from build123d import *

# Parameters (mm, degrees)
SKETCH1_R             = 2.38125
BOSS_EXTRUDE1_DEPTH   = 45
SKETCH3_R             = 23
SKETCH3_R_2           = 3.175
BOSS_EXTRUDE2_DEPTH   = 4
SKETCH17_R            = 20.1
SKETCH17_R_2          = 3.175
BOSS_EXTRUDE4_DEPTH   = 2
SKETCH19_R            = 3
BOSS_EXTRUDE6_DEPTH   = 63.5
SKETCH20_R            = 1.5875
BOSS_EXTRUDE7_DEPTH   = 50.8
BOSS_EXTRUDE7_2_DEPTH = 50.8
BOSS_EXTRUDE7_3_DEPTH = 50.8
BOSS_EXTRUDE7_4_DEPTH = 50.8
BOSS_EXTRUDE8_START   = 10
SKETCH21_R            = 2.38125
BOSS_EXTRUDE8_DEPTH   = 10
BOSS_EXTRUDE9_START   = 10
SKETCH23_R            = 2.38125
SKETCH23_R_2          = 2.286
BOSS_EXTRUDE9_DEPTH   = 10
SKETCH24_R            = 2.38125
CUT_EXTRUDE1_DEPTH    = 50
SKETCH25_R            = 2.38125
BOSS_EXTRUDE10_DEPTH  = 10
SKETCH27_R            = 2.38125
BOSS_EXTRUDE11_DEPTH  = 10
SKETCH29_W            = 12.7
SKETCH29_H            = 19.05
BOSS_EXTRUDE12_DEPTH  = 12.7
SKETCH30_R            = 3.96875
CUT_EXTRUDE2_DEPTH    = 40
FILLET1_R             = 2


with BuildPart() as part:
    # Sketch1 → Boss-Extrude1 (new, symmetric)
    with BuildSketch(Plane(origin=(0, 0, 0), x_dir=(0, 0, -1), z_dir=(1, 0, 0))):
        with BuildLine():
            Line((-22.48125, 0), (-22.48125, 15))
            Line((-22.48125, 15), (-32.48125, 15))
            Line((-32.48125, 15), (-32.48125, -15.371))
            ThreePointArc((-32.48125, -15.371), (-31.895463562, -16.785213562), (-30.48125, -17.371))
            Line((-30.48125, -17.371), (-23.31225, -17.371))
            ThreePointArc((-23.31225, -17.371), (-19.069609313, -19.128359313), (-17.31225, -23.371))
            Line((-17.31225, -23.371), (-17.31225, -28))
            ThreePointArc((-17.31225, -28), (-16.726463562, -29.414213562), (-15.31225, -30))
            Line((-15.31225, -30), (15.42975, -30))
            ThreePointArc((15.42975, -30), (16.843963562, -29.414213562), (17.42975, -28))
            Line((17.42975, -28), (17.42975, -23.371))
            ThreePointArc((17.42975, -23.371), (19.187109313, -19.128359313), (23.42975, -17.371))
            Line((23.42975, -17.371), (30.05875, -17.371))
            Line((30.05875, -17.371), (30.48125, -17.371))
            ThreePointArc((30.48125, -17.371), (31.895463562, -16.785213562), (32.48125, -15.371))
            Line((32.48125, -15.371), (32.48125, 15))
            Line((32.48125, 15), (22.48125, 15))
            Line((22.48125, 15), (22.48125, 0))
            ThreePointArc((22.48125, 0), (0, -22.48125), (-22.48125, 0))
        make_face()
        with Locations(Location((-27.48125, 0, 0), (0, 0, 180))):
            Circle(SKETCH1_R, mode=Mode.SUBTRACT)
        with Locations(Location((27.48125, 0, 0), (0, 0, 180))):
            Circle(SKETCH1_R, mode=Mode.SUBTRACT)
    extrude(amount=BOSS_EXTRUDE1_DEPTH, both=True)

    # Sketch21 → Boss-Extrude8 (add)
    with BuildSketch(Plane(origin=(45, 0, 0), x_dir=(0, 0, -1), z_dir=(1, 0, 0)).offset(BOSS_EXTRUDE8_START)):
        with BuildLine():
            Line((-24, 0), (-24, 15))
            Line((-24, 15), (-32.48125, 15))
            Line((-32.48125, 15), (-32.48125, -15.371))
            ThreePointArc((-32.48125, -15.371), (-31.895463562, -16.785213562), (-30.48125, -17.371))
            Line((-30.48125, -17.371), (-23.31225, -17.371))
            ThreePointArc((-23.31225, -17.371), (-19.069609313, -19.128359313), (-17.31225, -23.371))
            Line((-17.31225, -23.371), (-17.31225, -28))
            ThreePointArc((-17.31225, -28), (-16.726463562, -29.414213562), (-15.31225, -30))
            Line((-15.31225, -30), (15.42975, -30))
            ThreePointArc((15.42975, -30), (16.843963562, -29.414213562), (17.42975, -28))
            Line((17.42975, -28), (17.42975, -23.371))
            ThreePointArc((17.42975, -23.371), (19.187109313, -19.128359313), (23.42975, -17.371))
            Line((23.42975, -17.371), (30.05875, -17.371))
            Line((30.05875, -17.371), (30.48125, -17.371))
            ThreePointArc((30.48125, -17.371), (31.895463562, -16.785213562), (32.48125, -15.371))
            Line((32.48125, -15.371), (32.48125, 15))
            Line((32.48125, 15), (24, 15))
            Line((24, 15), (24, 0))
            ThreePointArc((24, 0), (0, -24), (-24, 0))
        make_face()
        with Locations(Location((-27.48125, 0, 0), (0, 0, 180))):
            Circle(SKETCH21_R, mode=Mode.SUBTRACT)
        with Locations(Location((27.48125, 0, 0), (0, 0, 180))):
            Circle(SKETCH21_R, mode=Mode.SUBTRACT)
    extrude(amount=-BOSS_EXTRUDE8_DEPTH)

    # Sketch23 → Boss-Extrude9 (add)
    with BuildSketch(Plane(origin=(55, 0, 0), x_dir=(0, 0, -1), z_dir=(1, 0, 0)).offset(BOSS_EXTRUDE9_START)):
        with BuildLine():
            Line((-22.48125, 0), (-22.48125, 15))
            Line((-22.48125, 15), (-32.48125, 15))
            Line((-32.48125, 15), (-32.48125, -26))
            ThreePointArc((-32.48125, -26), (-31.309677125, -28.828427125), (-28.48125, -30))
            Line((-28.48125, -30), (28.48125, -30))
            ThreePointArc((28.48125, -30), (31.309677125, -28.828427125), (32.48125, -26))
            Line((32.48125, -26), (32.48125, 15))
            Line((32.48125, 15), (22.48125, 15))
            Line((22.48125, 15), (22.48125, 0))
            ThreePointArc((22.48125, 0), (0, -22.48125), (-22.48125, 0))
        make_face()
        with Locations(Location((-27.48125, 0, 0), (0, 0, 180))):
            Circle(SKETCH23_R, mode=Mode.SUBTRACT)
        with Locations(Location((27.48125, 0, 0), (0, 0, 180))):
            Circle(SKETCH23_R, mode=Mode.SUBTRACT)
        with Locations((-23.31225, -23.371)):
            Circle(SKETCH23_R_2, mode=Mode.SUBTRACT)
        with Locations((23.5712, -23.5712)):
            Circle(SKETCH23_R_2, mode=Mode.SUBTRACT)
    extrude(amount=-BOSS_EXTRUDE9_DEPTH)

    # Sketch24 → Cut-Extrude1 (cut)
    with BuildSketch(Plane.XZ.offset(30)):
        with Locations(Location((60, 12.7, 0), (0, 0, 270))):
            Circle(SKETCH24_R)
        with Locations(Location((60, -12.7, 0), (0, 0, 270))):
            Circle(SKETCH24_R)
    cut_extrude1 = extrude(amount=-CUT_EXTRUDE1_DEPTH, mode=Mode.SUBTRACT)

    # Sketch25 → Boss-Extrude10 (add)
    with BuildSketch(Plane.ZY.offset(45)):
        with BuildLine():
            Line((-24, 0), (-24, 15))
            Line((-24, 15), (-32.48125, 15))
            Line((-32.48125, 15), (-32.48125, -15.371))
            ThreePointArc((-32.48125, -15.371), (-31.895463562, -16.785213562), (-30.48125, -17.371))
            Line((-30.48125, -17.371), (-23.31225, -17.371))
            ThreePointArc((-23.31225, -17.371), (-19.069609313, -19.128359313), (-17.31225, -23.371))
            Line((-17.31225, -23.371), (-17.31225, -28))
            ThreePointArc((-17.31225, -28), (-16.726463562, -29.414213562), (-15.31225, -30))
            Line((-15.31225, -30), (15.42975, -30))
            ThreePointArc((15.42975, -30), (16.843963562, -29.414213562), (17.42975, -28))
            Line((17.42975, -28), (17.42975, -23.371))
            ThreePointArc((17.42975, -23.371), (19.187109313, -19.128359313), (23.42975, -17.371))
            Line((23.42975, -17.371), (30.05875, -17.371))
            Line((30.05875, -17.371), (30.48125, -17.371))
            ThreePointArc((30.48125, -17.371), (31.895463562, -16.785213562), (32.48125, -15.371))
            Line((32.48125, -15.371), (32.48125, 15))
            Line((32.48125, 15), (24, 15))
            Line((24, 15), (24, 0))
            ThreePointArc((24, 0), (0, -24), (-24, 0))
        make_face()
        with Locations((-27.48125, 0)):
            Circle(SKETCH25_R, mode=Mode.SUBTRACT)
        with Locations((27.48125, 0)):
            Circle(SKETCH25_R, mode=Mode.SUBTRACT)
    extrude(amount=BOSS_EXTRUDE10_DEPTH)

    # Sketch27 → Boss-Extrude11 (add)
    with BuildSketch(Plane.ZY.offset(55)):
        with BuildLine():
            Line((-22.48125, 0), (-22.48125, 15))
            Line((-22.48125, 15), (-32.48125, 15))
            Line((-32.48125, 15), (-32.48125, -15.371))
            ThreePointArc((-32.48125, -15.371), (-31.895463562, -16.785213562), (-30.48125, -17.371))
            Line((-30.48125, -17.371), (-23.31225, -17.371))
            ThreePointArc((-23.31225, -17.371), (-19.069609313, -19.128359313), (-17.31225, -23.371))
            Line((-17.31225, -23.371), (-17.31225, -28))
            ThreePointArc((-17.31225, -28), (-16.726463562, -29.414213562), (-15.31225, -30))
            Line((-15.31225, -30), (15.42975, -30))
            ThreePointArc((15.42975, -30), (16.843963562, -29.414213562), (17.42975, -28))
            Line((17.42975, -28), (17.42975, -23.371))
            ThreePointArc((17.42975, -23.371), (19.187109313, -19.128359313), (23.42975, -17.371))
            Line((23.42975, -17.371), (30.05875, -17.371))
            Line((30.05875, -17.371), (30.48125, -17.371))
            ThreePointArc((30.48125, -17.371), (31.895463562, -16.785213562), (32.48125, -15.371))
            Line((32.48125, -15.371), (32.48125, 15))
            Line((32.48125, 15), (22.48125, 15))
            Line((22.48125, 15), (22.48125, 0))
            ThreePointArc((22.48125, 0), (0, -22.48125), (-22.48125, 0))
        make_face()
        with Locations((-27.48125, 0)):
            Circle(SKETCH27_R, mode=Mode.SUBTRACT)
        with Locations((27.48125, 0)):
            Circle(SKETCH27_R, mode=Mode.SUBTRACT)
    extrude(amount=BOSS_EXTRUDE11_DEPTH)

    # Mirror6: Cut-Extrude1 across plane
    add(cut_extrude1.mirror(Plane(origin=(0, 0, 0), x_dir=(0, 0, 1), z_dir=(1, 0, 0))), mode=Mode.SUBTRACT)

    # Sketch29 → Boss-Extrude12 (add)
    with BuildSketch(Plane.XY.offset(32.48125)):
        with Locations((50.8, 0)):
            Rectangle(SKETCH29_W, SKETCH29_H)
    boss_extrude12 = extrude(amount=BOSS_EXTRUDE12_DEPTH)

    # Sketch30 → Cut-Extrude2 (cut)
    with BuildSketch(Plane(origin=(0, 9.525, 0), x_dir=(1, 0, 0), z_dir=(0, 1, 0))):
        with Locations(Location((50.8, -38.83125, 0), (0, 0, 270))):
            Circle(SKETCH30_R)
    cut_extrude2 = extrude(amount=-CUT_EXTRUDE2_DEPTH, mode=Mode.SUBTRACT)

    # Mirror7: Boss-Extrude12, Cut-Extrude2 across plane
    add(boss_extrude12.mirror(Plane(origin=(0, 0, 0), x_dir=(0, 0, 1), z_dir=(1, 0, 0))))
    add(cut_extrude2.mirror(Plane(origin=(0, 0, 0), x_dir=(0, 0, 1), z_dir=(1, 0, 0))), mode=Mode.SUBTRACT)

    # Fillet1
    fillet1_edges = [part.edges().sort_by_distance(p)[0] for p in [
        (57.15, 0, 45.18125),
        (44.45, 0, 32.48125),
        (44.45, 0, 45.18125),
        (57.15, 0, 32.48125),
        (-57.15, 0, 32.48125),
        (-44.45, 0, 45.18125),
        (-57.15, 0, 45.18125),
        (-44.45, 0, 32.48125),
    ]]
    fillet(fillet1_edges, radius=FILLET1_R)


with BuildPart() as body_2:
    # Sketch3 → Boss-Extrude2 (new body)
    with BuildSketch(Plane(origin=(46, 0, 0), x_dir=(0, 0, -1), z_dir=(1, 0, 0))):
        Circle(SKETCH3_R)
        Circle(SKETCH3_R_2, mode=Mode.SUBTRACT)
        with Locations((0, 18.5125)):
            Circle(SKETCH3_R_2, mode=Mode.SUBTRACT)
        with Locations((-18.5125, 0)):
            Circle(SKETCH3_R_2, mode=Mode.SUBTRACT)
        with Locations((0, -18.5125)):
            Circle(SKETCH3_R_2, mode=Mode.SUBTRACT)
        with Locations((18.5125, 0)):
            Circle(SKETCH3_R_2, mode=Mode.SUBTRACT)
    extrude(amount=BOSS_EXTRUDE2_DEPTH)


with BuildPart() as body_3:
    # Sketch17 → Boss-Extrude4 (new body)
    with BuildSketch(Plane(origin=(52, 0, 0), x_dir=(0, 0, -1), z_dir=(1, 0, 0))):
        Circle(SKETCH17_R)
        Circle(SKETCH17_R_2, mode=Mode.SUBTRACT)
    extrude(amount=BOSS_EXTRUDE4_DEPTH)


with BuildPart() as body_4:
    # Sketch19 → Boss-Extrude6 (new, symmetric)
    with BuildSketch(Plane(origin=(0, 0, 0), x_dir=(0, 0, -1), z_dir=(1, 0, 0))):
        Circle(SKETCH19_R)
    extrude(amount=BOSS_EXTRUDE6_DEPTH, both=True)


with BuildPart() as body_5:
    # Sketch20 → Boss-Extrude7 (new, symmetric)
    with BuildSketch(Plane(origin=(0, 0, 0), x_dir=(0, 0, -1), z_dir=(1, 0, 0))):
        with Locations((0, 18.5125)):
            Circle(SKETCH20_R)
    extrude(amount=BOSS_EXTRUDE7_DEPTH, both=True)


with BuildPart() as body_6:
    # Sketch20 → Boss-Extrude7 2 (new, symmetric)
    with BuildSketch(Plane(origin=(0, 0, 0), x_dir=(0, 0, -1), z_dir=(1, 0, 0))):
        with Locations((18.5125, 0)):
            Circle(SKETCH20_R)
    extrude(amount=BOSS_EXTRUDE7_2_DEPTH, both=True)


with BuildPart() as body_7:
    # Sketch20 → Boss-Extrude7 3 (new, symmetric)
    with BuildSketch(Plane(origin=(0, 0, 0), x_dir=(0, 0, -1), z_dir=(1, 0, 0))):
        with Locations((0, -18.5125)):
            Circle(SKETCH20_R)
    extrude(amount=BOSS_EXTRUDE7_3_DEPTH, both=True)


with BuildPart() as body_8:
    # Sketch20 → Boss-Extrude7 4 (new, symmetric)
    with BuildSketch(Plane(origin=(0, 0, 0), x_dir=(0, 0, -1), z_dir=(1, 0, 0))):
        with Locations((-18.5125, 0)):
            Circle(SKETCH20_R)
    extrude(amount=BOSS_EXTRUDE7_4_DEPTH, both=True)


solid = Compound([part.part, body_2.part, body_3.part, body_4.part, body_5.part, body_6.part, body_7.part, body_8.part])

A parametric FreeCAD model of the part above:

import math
import FreeCAD as App
import Part
import Sketcher
from FreeCAD import Vector
Q = App.Units.Quantity


def edges_at(feature, points):
    """Names of the edges that pass closest to the given points."""
    edges = feature.Shape.Edges
    near = lambda p: min(range(len(edges)), key=lambda i: edges[i].distToShape(Part.Vertex(*p))[0])
    return sorted({f"Edge{near(p) + 1}" for p in points})


def add_polygon(sketch, points):
    """Adds a closed chain of lines whose ends are joined by coincident constraints."""
    first, n = sketch.GeometryCount, len(points)
    for a, b in zip(points, points[1:] + points[:1]):
        sketch.addGeometry(Part.LineSegment(App.Vector(*a, 0), App.Vector(*b, 0)), False)
    for i in range(n):
        sketch.addConstraint(Sketcher.Constraint("Coincident", first + i, 2, first + (i + 1) % n, 1))

doc = App.newDocument("Part")
body = doc.addObject("PartDesign::Body", "Body")

sketch1 = body.newObject("Sketcher::SketchObject", "Sketch")
sketch1.AttachmentSupport = (doc.getObject("YZ_Plane"), [""])
sketch1.MapMode = "FlatFace"
sketch1.addGeometry([
    Part.LineSegment(Vector(0, 22.48125, 0), Vector(15, 22.48125, 0)),
    Part.LineSegment(Vector(15, 22.48125, 0), Vector(15, 32.48125, 0)),
    Part.LineSegment(Vector(15, 32.48125, 0), Vector(-15.371, 32.48125, 0)),
    Part.ArcOfCircle(Part.Circle(Vector(-15.371, 30.48125, 0), Vector(0, 0, 1), 2), math.radians(90), math.radians(180)),
    Part.LineSegment(Vector(-17.371, 30.48125, 0), Vector(-17.371, 23.31225, 0)),
    Part.ArcOfCircle(Part.Circle(Vector(-23.371, 23.31225, 0), Vector(0, 0, 1), 6), math.radians(-90), math.radians(0)),
    Part.LineSegment(Vector(-23.371, 17.31225, 0), Vector(-28, 17.31225, 0)),
    Part.ArcOfCircle(Part.Circle(Vector(-28, 15.31225, 0), Vector(0, 0, 1), 2), math.radians(90), math.radians(180)),
    Part.LineSegment(Vector(-30, 15.31225, 0), Vector(-30, -15.42975, 0)),
    Part.ArcOfCircle(Part.Circle(Vector(-28, -15.42975, 0), Vector(0, 0, 1), 2), math.radians(-180), math.radians(-90)),
    Part.LineSegment(Vector(-28, -17.42975, 0), Vector(-23.371, -17.42975, 0)),
    Part.ArcOfCircle(Part.Circle(Vector(-23.371, -23.42975, 0), Vector(0, 0, 1), 6), math.radians(0), math.radians(90)),
    Part.LineSegment(Vector(-17.371, -23.42975, 0), Vector(-17.371, -30.48125, 0)),
    Part.ArcOfCircle(Part.Circle(Vector(-15.371, -30.48125, 0), Vector(0, 0, 1), 2), math.radians(-180), math.radians(-90)),
    Part.LineSegment(Vector(-15.371, -32.48125, 0), Vector(15, -32.48125, 0)),
    Part.LineSegment(Vector(15, -32.48125, 0), Vector(15, -22.48125, 0)),
    Part.LineSegment(Vector(15, -22.48125, 0), Vector(0, -22.48125, 0)),
    Part.ArcOfCircle(Part.Circle(Vector(0, 0, 0), Vector(0, 0, 1), 22.48125), math.radians(90), math.radians(270)),
    Part.Circle(Vector(0, 27.48125, 0), Vector(0, 0, 1), 2.38125),
    Part.Circle(Vector(0, -27.48125, 0), Vector(0, 0, 1), 2.38125),
], False)
sketch1.addConstraint([
    Sketcher.Constraint("Coincident", 0, 2, 1, 1),
    Sketcher.Constraint("Coincident", 1, 2, 2, 1),
    Sketcher.Constraint("Tangent", 2, 2, 3, 1),
    Sketcher.Constraint("Tangent", 3, 2, 4, 1),
    Sketcher.Constraint("Tangent", 4, 2, 5, 2),
    Sketcher.Constraint("Tangent", 5, 1, 6, 1),
    Sketcher.Constraint("Tangent", 6, 2, 7, 1),
    Sketcher.Constraint("Tangent", 7, 2, 8, 1),
    Sketcher.Constraint("Tangent", 8, 2, 9, 1),
    Sketcher.Constraint("Tangent", 9, 2, 10, 1),
    Sketcher.Constraint("Tangent", 10, 2, 11, 2),
    Sketcher.Constraint("Tangent", 11, 1, 12, 1),
    Sketcher.Constraint("Tangent", 12, 2, 13, 1),
    Sketcher.Constraint("Tangent", 13, 2, 14, 1),
    Sketcher.Constraint("Coincident", 14, 2, 15, 1),
    Sketcher.Constraint("Coincident", 15, 2, 16, 1),
    Sketcher.Constraint("Tangent", 16, 2, 17, 2),
    Sketcher.Constraint("Tangent", 17, 1, 0, 1),
    Sketcher.Constraint("Horizontal", 0),
    Sketcher.Constraint("Vertical", 1),
    Sketcher.Constraint("Horizontal", 2),
    Sketcher.Constraint("Vertical", 4),
    Sketcher.Constraint("Horizontal", 6),
    Sketcher.Constraint("Vertical", 8),
    Sketcher.Constraint("Horizontal", 10),
    Sketcher.Constraint("Vertical", 12),
    Sketcher.Constraint("Horizontal", 14),
    Sketcher.Constraint("Vertical", 15),
    Sketcher.Constraint("Horizontal", 16),
    Sketcher.Constraint("Coincident", 17, 3, -1, 1),
    Sketcher.Constraint("Equal", 3, 7),
    Sketcher.Constraint("Equal", 7, 9),
    Sketcher.Constraint("Equal", 5, 11),
    Sketcher.Constraint("Equal", 9, 13),
    Sketcher.Constraint("Equal", 18, 19),
    Sketcher.Constraint("Symmetric", 18, 3, 19, 3, -1, 1),
    Sketcher.Constraint("Symmetric", 3, 3, 13, 3, -1),
    Sketcher.Constraint("PointOnObject", 18, 3, -2),
    Sketcher.Constraint("Vertical", 1, 2, 14, 2),
    Sketcher.Constraint("Radius", 3, Q("2 mm")),
    Sketcher.Constraint("Radius", 5, Q("6 mm")),
    Sketcher.Constraint("DistanceX", 0, 1, 0, 2, Q("15 mm")),
    Sketcher.Constraint("DistanceY", 1, 1, 1, 2, Q("10 mm")),
    Sketcher.Constraint("DistanceX", 7, 3, -1, 1, Q("28 mm")),
    Sketcher.Constraint("DistanceY", 18, 3, 3, 3, Q("3 mm")),
    Sketcher.Constraint("Diameter", 18, Q("4.7625 mm")),
    Sketcher.Constraint("DistanceX", 2, 2, 2, 1, Q("30.371 mm")),
    Sketcher.Constraint("DistanceY", 4, 2, 4, 1, Q("7.169 mm")),
    Sketcher.Constraint("DistanceY", 8, 2, 8, 1, Q("30.742 mm")),
    Sketcher.Constraint("Radius", 17, Q("22.48125 mm")),
])
pad1 = body.newObject("PartDesign::Pad", "Pad")
pad1.Profile = sketch1
pad1.Length = 90
pad1.Midplane = True

sketch2 = body.newObject("Sketcher::SketchObject", "Sketch001")
sketch2.AttachmentSupport = (doc.getObject("YZ_Plane"), [""])
sketch2.MapMode = "FlatFace"
sketch2.AttachmentOffset = App.Placement(Vector(0, 0, 55), App.Rotation())
sketch2.addGeometry([
    Part.LineSegment(Vector(0, 24, 0), Vector(15, 24, 0)),
    Part.LineSegment(Vector(15, 24, 0), Vector(15, 32.48125, 0)),
    Part.LineSegment(Vector(15, 32.48125, 0), Vector(-15.371, 32.48125, 0)),
    Part.ArcOfCircle(Part.Circle(Vector(-15.371, 30.48125, 0), Vector(0, 0, 1), 2), math.radians(90), math.radians(180)),
    Part.LineSegment(Vector(-17.371, 30.48125, 0), Vector(-17.371, 23.31225, 0)),
    Part.ArcOfCircle(Part.Circle(Vector(-23.371, 23.31225, 0), Vector(0, 0, 1), 6), math.radians(-90), math.radians(0)),
    Part.LineSegment(Vector(-23.371, 17.31225, 0), Vector(-28, 17.31225, 0)),
    Part.ArcOfCircle(Part.Circle(Vector(-28, 15.31225, 0), Vector(0, 0, 1), 2), math.radians(90), math.radians(180)),
    Part.LineSegment(Vector(-30, 15.31225, 0), Vector(-30, -15.42975, 0)),
    Part.ArcOfCircle(Part.Circle(Vector(-28, -15.42975, 0), Vector(0, 0, 1), 2), math.radians(-180), math.radians(-90)),
    Part.LineSegment(Vector(-28, -17.42975, 0), Vector(-23.371, -17.42975, 0)),
    Part.ArcOfCircle(Part.Circle(Vector(-23.371, -23.42975, 0), Vector(0, 0, 1), 6), math.radians(0), math.radians(90)),
    Part.LineSegment(Vector(-17.371, -23.42975, 0), Vector(-17.371, -30.48125, 0)),
    Part.ArcOfCircle(Part.Circle(Vector(-15.371, -30.48125, 0), Vector(0, 0, 1), 2), math.radians(-180), math.radians(-90)),
    Part.LineSegment(Vector(-15.371, -32.48125, 0), Vector(15, -32.48125, 0)),
    Part.LineSegment(Vector(15, -32.48125, 0), Vector(15, -24, 0)),
    Part.LineSegment(Vector(15, -24, 0), Vector(0, -24, 0)),
    Part.ArcOfCircle(Part.Circle(Vector(0, 0, 0), Vector(0, 0, 1), 24), math.radians(90), math.radians(270)),
    Part.Circle(Vector(0, 27.48125, 0), Vector(0, 0, 1), 2.38125),
    Part.Circle(Vector(0, -27.48125, 0), Vector(0, 0, 1), 2.38125),
], False)
sketch2.addConstraint([
    Sketcher.Constraint("Coincident", 0, 2, 1, 1),
    Sketcher.Constraint("Coincident", 1, 2, 2, 1),
    Sketcher.Constraint("Tangent", 2, 2, 3, 1),
    Sketcher.Constraint("Tangent", 3, 2, 4, 1),
    Sketcher.Constraint("Tangent", 4, 2, 5, 2),
    Sketcher.Constraint("Tangent", 5, 1, 6, 1),
    Sketcher.Constraint("Tangent", 6, 2, 7, 1),
    Sketcher.Constraint("Tangent", 7, 2, 8, 1),
    Sketcher.Constraint("Tangent", 8, 2, 9, 1),
    Sketcher.Constraint("Tangent", 9, 2, 10, 1),
    Sketcher.Constraint("Tangent", 10, 2, 11, 2),
    Sketcher.Constraint("Tangent", 11, 1, 12, 1),
    Sketcher.Constraint("Tangent", 12, 2, 13, 1),
    Sketcher.Constraint("Tangent", 13, 2, 14, 1),
    Sketcher.Constraint("Coincident", 14, 2, 15, 1),
    Sketcher.Constraint("Coincident", 15, 2, 16, 1),
    Sketcher.Constraint("Tangent", 16, 2, 17, 2),
    Sketcher.Constraint("Tangent", 17, 1, 0, 1),
    Sketcher.Constraint("Horizontal", 0),
    Sketcher.Constraint("Vertical", 1),
    Sketcher.Constraint("Horizontal", 2),
    Sketcher.Constraint("Vertical", 4),
    Sketcher.Constraint("Horizontal", 6),
    Sketcher.Constraint("Vertical", 8),
    Sketcher.Constraint("Horizontal", 10),
    Sketcher.Constraint("Vertical", 12),
    Sketcher.Constraint("Horizontal", 14),
    Sketcher.Constraint("Vertical", 15),
    Sketcher.Constraint("Horizontal", 16),
    Sketcher.Constraint("Coincident", 17, 3, -1, 1),
    Sketcher.Constraint("Equal", 3, 7),
    Sketcher.Constraint("Equal", 7, 9),
    Sketcher.Constraint("Equal", 5, 11),
    Sketcher.Constraint("Equal", 9, 13),
    Sketcher.Constraint("Equal", 18, 19),
    Sketcher.Constraint("Symmetric", 18, 3, 19, 3, -1, 1),
    Sketcher.Constraint("Symmetric", 3, 3, 13, 3, -1),
    Sketcher.Constraint("PointOnObject", 18, 3, -2),
    Sketcher.Constraint("Vertical", 1, 2, 14, 2),
    Sketcher.Constraint("Radius", 3, Q("2 mm")),
    Sketcher.Constraint("Radius", 5, Q("6 mm")),
    Sketcher.Constraint("Radius", 17, Q("24 mm")),
    Sketcher.Constraint("DistanceX", 0, 1, 0, 2, Q("15 mm")),
    Sketcher.Constraint("DistanceX", 7, 3, -1, 1, Q("28 mm")),
    Sketcher.Constraint("DistanceY", 18, 3, 3, 3, Q("3 mm")),
    Sketcher.Constraint("Diameter", 18, Q("4.7625 mm")),
    Sketcher.Constraint("DistanceX", 2, 2, 2, 1, Q("30.371 mm")),
    Sketcher.Constraint("DistanceY", 4, 2, 4, 1, Q("7.169 mm")),
    Sketcher.Constraint("DistanceY", 8, 2, 8, 1, Q("30.742 mm")),
    Sketcher.Constraint("DistanceY", 12, 2, 12, 1, Q("7.0515 mm")),
])
pad2 = body.newObject("PartDesign::Pad", "Pad001")
pad2.Profile = sketch2
pad2.Length = 10
pad2.Reversed = True

sketch3 = body.newObject("Sketcher::SketchObject", "Sketch002")
sketch3.AttachmentSupport = (doc.getObject("YZ_Plane"), [""])
sketch3.MapMode = "FlatFace"
sketch3.AttachmentOffset = App.Placement(Vector(0, 0, 65), App.Rotation())
sketch3.addGeometry([
    Part.LineSegment(Vector(0, 22.48125, 0), Vector(15, 22.48125, 0)),
    Part.LineSegment(Vector(15, 22.48125, 0), Vector(15, 32.48125, 0)),
    Part.LineSegment(Vector(15, 32.48125, 0), Vector(-26, 32.48125, 0)),
    Part.ArcOfCircle(Part.Circle(Vector(-26, 28.48125, 0), Vector(0, 0, 1), 4), math.radians(90), math.radians(180)),
    Part.LineSegment(Vector(-30, 28.48125, 0), Vector(-30, -28.48125, 0)),
    Part.ArcOfCircle(Part.Circle(Vector(-26, -28.48125, 0), Vector(0, 0, 1), 4), math.radians(180), math.radians(270)),
    Part.LineSegment(Vector(-26, -32.48125, 0), Vector(15, -32.48125, 0)),
    Part.LineSegment(Vector(15, -32.48125, 0), Vector(15, -22.48125, 0)),
    Part.LineSegment(Vector(15, -22.48125, 0), Vector(0, -22.48125, 0)),
    Part.ArcOfCircle(Part.Circle(Vector(0, 0, 0), Vector(0, 0, 1), 22.48125), math.radians(90), math.radians(270)),
    Part.Circle(Vector(-23.371, 23.31225, 0), Vector(0, 0, 1), 2.286),
    Part.Circle(Vector(-23.5712, -23.5712, 0), Vector(0, 0, 1), 2.286),
    Part.Circle(Vector(0, 27.48125, 0), Vector(0, 0, 1), 2.38125),
    Part.Circle(Vector(0, -27.48125, 0), Vector(0, 0, 1), 2.38125),
], False)
sketch3.addConstraint([
    Sketcher.Constraint("Coincident", 0, 2, 1, 1),
    Sketcher.Constraint("Coincident", 1, 2, 2, 1),
    Sketcher.Constraint("Tangent", 2, 2, 3, 1),
    Sketcher.Constraint("Tangent", 3, 2, 4, 1),
    Sketcher.Constraint("Tangent", 4, 2, 5, 1),
    Sketcher.Constraint("Tangent", 5, 2, 6, 1),
    Sketcher.Constraint("Coincident", 6, 2, 7, 1),
    Sketcher.Constraint("Coincident", 7, 2, 8, 1),
    Sketcher.Constraint("Tangent", 8, 2, 9, 2),
    Sketcher.Constraint("Tangent", 9, 1, 0, 1),
    Sketcher.Constraint("Horizontal", 0),
    Sketcher.Constraint("Vertical", 1),
    Sketcher.Constraint("Horizontal", 2),
    Sketcher.Constraint("Vertical", 4),
    Sketcher.Constraint("Horizontal", 6),
    Sketcher.Constraint("Vertical", 7),
    Sketcher.Constraint("Horizontal", 8),
    Sketcher.Constraint("Coincident", 9, 3, -1, 1),
    Sketcher.Constraint("Equal", 3, 5),
    Sketcher.Constraint("Equal", 10, 11),
    Sketcher.Constraint("Equal", 12, 13),
    Sketcher.Constraint("Symmetric", 12, 3, 13, 3, -1, 1),
    Sketcher.Constraint("Symmetric", 1, 2, 6, 2, -1),
    Sketcher.Constraint("PointOnObject", 12, 3, -2),
    Sketcher.Constraint("Radius", 3, Q("4 mm")),
    Sketcher.Constraint("DistanceX", 0, 1, 0, 2, Q("15 mm")),
    Sketcher.Constraint("DistanceX", 2, 2, 2, 1, Q("41 mm")),
    Sketcher.Constraint("DistanceY", 1, 1, 1, 2, Q("10 mm")),
    Sketcher.Constraint("Diameter", 10, Q("4.572 mm")),
    Sketcher.Constraint("DistanceY", 12, 3, 3, 3, Q("1 mm")),
    Sketcher.Constraint("Diameter", 12, Q("4.7625 mm")),
    Sketcher.Constraint("Radius", 9, Q("22.48125 mm")),
    Sketcher.Constraint("DistanceX", 10, 3, -1, 1, Q("23.371 mm")),
    Sketcher.Constraint("DistanceY", 10, 3, 3, 3, Q("5.169 mm")),
    Sketcher.Constraint("DistanceX", 11, 3, -1, 1, Q("23.5712 mm")),
    Sketcher.Constraint("DistanceY", 11, 3, -1, 1, Q("23.5712 mm")),
])
pad3 = body.newObject("PartDesign::Pad", "Pad002")
pad3.Profile = sketch3
pad3.Length = 10
pad3.Reversed = True

sketch4 = body.newObject("Sketcher::SketchObject", "Sketch003")
sketch4.AttachmentSupport = (doc.getObject("XZ_Plane"), [""])
sketch4.MapMode = "FlatFace"
sketch4.AttachmentOffset = App.Placement(Vector(0, 0, 30), App.Rotation())
sketch4.addGeometry([
    Part.Circle(Vector(60, 12.7, 0), Vector(0, 0, 1), 2.38125),
    Part.Circle(Vector(60, -12.7, 0), Vector(0, 0, 1), 2.38125),
], False)
sketch4.addConstraint([
    Sketcher.Constraint("Equal", 0, 1),
    Sketcher.Constraint("Symmetric", 0, 3, 1, 3, -1),
    Sketcher.Constraint("DistanceX", -1, 1, 0, 3, Q("60 mm")),
    Sketcher.Constraint("Diameter", 0, Q("4.7625 mm")),
    Sketcher.Constraint("DistanceY", -1, 1, 0, 3, Q("12.7 mm")),
])
pocket1 = body.newObject("PartDesign::Pocket", "Pocket")
pocket1.Profile = sketch4
pocket1.Length = 50

sketch5 = body.newObject("Sketcher::SketchObject", "Sketch004")
sketch5.AttachmentSupport = (doc.getObject("YZ_Plane"), [""])
sketch5.MapMode = "FlatFace"
sketch5.AttachmentOffset = App.Placement(Vector(0, 0, -45), App.Rotation())
sketch5.addGeometry([
    Part.LineSegment(Vector(0, -24, 0), Vector(15, -24, 0)),
    Part.LineSegment(Vector(15, -24, 0), Vector(15, -32.48125, 0)),
    Part.LineSegment(Vector(15, -32.48125, 0), Vector(-15.371, -32.48125, 0)),
    Part.ArcOfCircle(Part.Circle(Vector(-15.371, -30.48125, 0), Vector(0, 0, 1), 2), math.radians(-180), math.radians(-90)),
    Part.LineSegment(Vector(-17.371, -30.48125, 0), Vector(-17.371, -23.31225, 0)),
    Part.ArcOfCircle(Part.Circle(Vector(-23.371, -23.31225, 0), Vector(0, 0, 1), 6), math.radians(0), math.radians(90)),
    Part.LineSegment(Vector(-23.371, -17.31225, 0), Vector(-28, -17.31225, 0)),
    Part.ArcOfCircle(Part.Circle(Vector(-28, -15.31225, 0), Vector(0, 0, 1), 2), math.radians(-180), math.radians(-90)),
    Part.LineSegment(Vector(-30, -15.31225, 0), Vector(-30, 15.42975, 0)),
    Part.ArcOfCircle(Part.Circle(Vector(-28, 15.42975, 0), Vector(0, 0, 1), 2), math.radians(90), math.radians(180)),
    Part.LineSegment(Vector(-28, 17.42975, 0), Vector(-23.371, 17.42975, 0)),
    Part.ArcOfCircle(Part.Circle(Vector(-23.371, 23.42975, 0), Vector(0, 0, 1), 6), math.radians(-90), math.radians(0)),
    Part.LineSegment(Vector(-17.371, 23.42975, 0), Vector(-17.371, 30.48125, 0)),
    Part.ArcOfCircle(Part.Circle(Vector(-15.371, 30.48125, 0), Vector(0, 0, 1), 2), math.radians(90), math.radians(180)),
    Part.LineSegment(Vector(-15.371, 32.48125, 0), Vector(15, 32.48125, 0)),
    Part.LineSegment(Vector(15, 32.48125, 0), Vector(15, 24, 0)),
    Part.LineSegment(Vector(15, 24, 0), Vector(0, 24, 0)),
    Part.ArcOfCircle(Part.Circle(Vector(0, 0, 0), Vector(0, 0, 1), 24), math.radians(90), math.radians(270)),
    Part.Circle(Vector(0, -27.48125, 0), Vector(0, 0, 1), 2.38125),
    Part.Circle(Vector(0, 27.48125, 0), Vector(0, 0, 1), 2.38125),
], False)
sketch5.addConstraint([
    Sketcher.Constraint("Coincident", 0, 2, 1, 1),
    Sketcher.Constraint("Coincident", 1, 2, 2, 1),
    Sketcher.Constraint("Tangent", 2, 2, 3, 2),
    Sketcher.Constraint("Tangent", 3, 1, 4, 1),
    Sketcher.Constraint("Tangent", 4, 2, 5, 1),
    Sketcher.Constraint("Tangent", 5, 2, 6, 1),
    Sketcher.Constraint("Tangent", 6, 2, 7, 2),
    Sketcher.Constraint("Tangent", 7, 1, 8, 1),
    Sketcher.Constraint("Tangent", 8, 2, 9, 2),
    Sketcher.Constraint("Tangent", 9, 1, 10, 1),
    Sketcher.Constraint("Tangent", 10, 2, 11, 1),
    Sketcher.Constraint("Tangent", 11, 2, 12, 1),
    Sketcher.Constraint("Tangent", 12, 2, 13, 2),
    Sketcher.Constraint("Tangent", 13, 1, 14, 1),
    Sketcher.Constraint("Coincident", 14, 2, 15, 1),
    Sketcher.Constraint("Coincident", 15, 2, 16, 1),
    Sketcher.Constraint("Tangent", 16, 2, 17, 1),
    Sketcher.Constraint("Tangent", 17, 2, 0, 1),
    Sketcher.Constraint("Horizontal", 0),
    Sketcher.Constraint("Vertical", 1),
    Sketcher.Constraint("Horizontal", 2),
    Sketcher.Constraint("Vertical", 4),
    Sketcher.Constraint("Horizontal", 6),
    Sketcher.Constraint("Vertical", 8),
    Sketcher.Constraint("Horizontal", 10),
    Sketcher.Constraint("Vertical", 12),
    Sketcher.Constraint("Horizontal", 14),
    Sketcher.Constraint("Vertical", 15),
    Sketcher.Constraint("Horizontal", 16),
    Sketcher.Constraint("Coincident", 17, 3, -1, 1),
    Sketcher.Constraint("Equal", 3, 7),
    Sketcher.Constraint("Equal", 7, 9),
    Sketcher.Constraint("Equal", 5, 11),
    Sketcher.Constraint("Equal", 9, 13),
    Sketcher.Constraint("Equal", 18, 19),
    Sketcher.Constraint("Symmetric", 18, 3, 19, 3, -1, 1),
    Sketcher.Constraint("Symmetric", 3, 3, 13, 3, -1),
    Sketcher.Constraint("PointOnObject", 18, 3, -2),
    Sketcher.Constraint("Vertical", 1, 2, 14, 2),
    Sketcher.Constraint("Radius", 3, Q("2 mm")),
    Sketcher.Constraint("Radius", 5, Q("6 mm")),
    Sketcher.Constraint("Radius", 17, Q("24 mm")),
    Sketcher.Constraint("DistanceX", 0, 1, 0, 2, Q("15 mm")),
    Sketcher.Constraint("DistanceX", 7, 3, -1, 1, Q("28 mm")),
    Sketcher.Constraint("DistanceY", 3, 3, 18, 3, Q("3 mm")),
    Sketcher.Constraint("Diameter", 18, Q("4.7625 mm")),
    Sketcher.Constraint("DistanceX", 2, 2, 2, 1, Q("30.371 mm")),
    Sketcher.Constraint("DistanceY", 4, 1, 4, 2, Q("7.169 mm")),
    Sketcher.Constraint("DistanceY", 8, 1, 8, 2, Q("30.742 mm")),
    Sketcher.Constraint("DistanceY", 12, 1, 12, 2, Q("7.0515 mm")),
])
pad4 = body.newObject("PartDesign::Pad", "Pad003")
pad4.Profile = sketch5
pad4.Length = 10
pad4.Reversed = True

sketch6 = body.newObject("Sketcher::SketchObject", "Sketch005")
sketch6.AttachmentSupport = (doc.getObject("YZ_Plane"), [""])
sketch6.MapMode = "FlatFace"
sketch6.AttachmentOffset = App.Placement(Vector(0, 0, -55), App.Rotation())
sketch6.addGeometry([
    Part.LineSegment(Vector(0, -22.48125, 0), Vector(15, -22.48125, 0)),
    Part.LineSegment(Vector(15, -22.48125, 0), Vector(15, -32.48125, 0)),
    Part.LineSegment(Vector(15, -32.48125, 0), Vector(-15.371, -32.48125, 0)),
    Part.ArcOfCircle(Part.Circle(Vector(-15.371, -30.48125, 0), Vector(0, 0, 1), 2), math.radians(-180), math.radians(-90)),
    Part.LineSegment(Vector(-17.371, -30.48125, 0), Vector(-17.371, -23.31225, 0)),
    Part.ArcOfCircle(Part.Circle(Vector(-23.371, -23.31225, 0), Vector(0, 0, 1), 6), math.radians(0), math.radians(90)),
    Part.LineSegment(Vector(-23.371, -17.31225, 0), Vector(-28, -17.31225, 0)),
    Part.ArcOfCircle(Part.Circle(Vector(-28, -15.31225, 0), Vector(0, 0, 1), 2), math.radians(-180), math.radians(-90)),
    Part.LineSegment(Vector(-30, -15.31225, 0), Vector(-30, 15.42975, 0)),
    Part.ArcOfCircle(Part.Circle(Vector(-28, 15.42975, 0), Vector(0, 0, 1), 2), math.radians(90), math.radians(180)),
    Part.LineSegment(Vector(-28, 17.42975, 0), Vector(-23.371, 17.42975, 0)),
    Part.ArcOfCircle(Part.Circle(Vector(-23.371, 23.42975, 0), Vector(0, 0, 1), 6), math.radians(-90), math.radians(0)),
    Part.LineSegment(Vector(-17.371, 23.42975, 0), Vector(-17.371, 30.48125, 0)),
    Part.ArcOfCircle(Part.Circle(Vector(-15.371, 30.48125, 0), Vector(0, 0, 1), 2), math.radians(90), math.radians(180)),
    Part.LineSegment(Vector(-15.371, 32.48125, 0), Vector(15, 32.48125, 0)),
    Part.LineSegment(Vector(15, 32.48125, 0), Vector(15, 22.48125, 0)),
    Part.LineSegment(Vector(15, 22.48125, 0), Vector(0, 22.48125, 0)),
    Part.ArcOfCircle(Part.Circle(Vector(0, 0, 0), Vector(0, 0, 1), 22.48125), math.radians(90), math.radians(270)),
    Part.Circle(Vector(0, -27.48125, 0), Vector(0, 0, 1), 2.38125),
    Part.Circle(Vector(0, 27.48125, 0), Vector(0, 0, 1), 2.38125),
], False)
sketch6.addConstraint([
    Sketcher.Constraint("Coincident", 0, 2, 1, 1),
    Sketcher.Constraint("Coincident", 1, 2, 2, 1),
    Sketcher.Constraint("Tangent", 2, 2, 3, 2),
    Sketcher.Constraint("Tangent", 3, 1, 4, 1),
    Sketcher.Constraint("Tangent", 4, 2, 5, 1),
    Sketcher.Constraint("Tangent", 5, 2, 6, 1),
    Sketcher.Constraint("Tangent", 6, 2, 7, 2),
    Sketcher.Constraint("Tangent", 7, 1, 8, 1),
    Sketcher.Constraint("Tangent", 8, 2, 9, 2),
    Sketcher.Constraint("Tangent", 9, 1, 10, 1),
    Sketcher.Constraint("Tangent", 10, 2, 11, 1),
    Sketcher.Constraint("Tangent", 11, 2, 12, 1),
    Sketcher.Constraint("Tangent", 12, 2, 13, 2),
    Sketcher.Constraint("Tangent", 13, 1, 14, 1),
    Sketcher.Constraint("Coincident", 14, 2, 15, 1),
    Sketcher.Constraint("Coincident", 15, 2, 16, 1),
    Sketcher.Constraint("Tangent", 16, 2, 17, 1),
    Sketcher.Constraint("Tangent", 17, 2, 0, 1),
    Sketcher.Constraint("Horizontal", 0),
    Sketcher.Constraint("Vertical", 1),
    Sketcher.Constraint("Horizontal", 2),
    Sketcher.Constraint("Vertical", 4),
    Sketcher.Constraint("Horizontal", 6),
    Sketcher.Constraint("Vertical", 8),
    Sketcher.Constraint("Horizontal", 10),
    Sketcher.Constraint("Vertical", 12),
    Sketcher.Constraint("Horizontal", 14),
    Sketcher.Constraint("Vertical", 15),
    Sketcher.Constraint("Horizontal", 16),
    Sketcher.Constraint("Coincident", 17, 3, -1, 1),
    Sketcher.Constraint("Equal", 3, 7),
    Sketcher.Constraint("Equal", 7, 9),
    Sketcher.Constraint("Equal", 5, 11),
    Sketcher.Constraint("Equal", 9, 13),
    Sketcher.Constraint("Equal", 18, 19),
    Sketcher.Constraint("Symmetric", 18, 3, 19, 3, -1, 1),
    Sketcher.Constraint("Symmetric", 3, 3, 13, 3, -1),
    Sketcher.Constraint("PointOnObject", 18, 3, -2),
    Sketcher.Constraint("Vertical", 1, 2, 14, 2),
    Sketcher.Constraint("Radius", 3, Q("2 mm")),
    Sketcher.Constraint("Radius", 5, Q("6 mm")),
    Sketcher.Constraint("DistanceX", 0, 1, 0, 2, Q("15 mm")),
    Sketcher.Constraint("DistanceY", 1, 2, 1, 1, Q("10 mm")),
    Sketcher.Constraint("DistanceX", 7, 3, -1, 1, Q("28 mm")),
    Sketcher.Constraint("DistanceY", 3, 3, 18, 3, Q("3 mm")),
    Sketcher.Constraint("Diameter", 18, Q("4.7625 mm")),
    Sketcher.Constraint("DistanceX", 2, 2, 2, 1, Q("30.371 mm")),
    Sketcher.Constraint("DistanceY", 4, 1, 4, 2, Q("7.169 mm")),
    Sketcher.Constraint("DistanceY", 8, 1, 8, 2, Q("30.742 mm")),
    Sketcher.Constraint("Radius", 17, Q("22.48125 mm")),
])
pad5 = body.newObject("PartDesign::Pad", "Pad004")
pad5.Profile = sketch6
pad5.Length = 10
pad5.Reversed = True
doc.recompute()

mirrored = body.newObject("PartDesign::Mirrored", "Mirrored")
mirrored.Originals = [pocket1]
mirrored.MirrorPlane = (doc.getObject("YZ_Plane"), [""])
body.Tip = mirrored

sketch7 = body.newObject("Sketcher::SketchObject", "Sketch006")
sketch7.AttachmentSupport = (doc.getObject("XY_Plane"), [""])
sketch7.MapMode = "FlatFace"
sketch7.AttachmentOffset = App.Placement(Vector(0, 0, 32.48125), App.Rotation())
add_polygon(sketch7, [(44.45, 9.525), (44.45, -9.525), (57.15, -9.525), (57.15, 9.525)])
sketch7.addConstraint([
    Sketcher.Constraint("Vertical", 0),
    Sketcher.Constraint("Horizontal", 1),
    Sketcher.Constraint("Vertical", 2),
    Sketcher.Constraint("Horizontal", 3),
    Sketcher.Constraint("DistanceX", 1, 1, 1, 2, Q("12.7 mm")),
    Sketcher.Constraint("DistanceY", 0, 2, 0, 1, Q("19.05 mm")),
    Sketcher.Constraint("DistanceX", -1, 1, 0, 2, Q("44.45 mm")),
    Sketcher.Constraint("DistanceY", 0, 2, -1, 1, Q("9.525 mm")),
])
pad6 = body.newObject("PartDesign::Pad", "Pad005")
pad6.Profile = sketch7
pad6.Length = 12.7

sketch8 = body.newObject("Sketcher::SketchObject", "Sketch007")
sketch8.AttachmentSupport = (doc.getObject("XZ_Plane"), [""])
sketch8.MapMode = "FlatFace"
sketch8.AttachmentOffset = App.Placement(Vector(0, 0, -9.525), App.Rotation())
sketch8.addGeometry(Part.Circle(Vector(50.8, 38.83125, 0), Vector(0, 0, 1), 3.96875), False)
sketch8.addConstraint([
    Sketcher.Constraint("Diameter", 0, Q("7.9375 mm")),
    Sketcher.Constraint("DistanceX", -1, 1, 0, 3, Q("50.8 mm")),
    Sketcher.Constraint("DistanceY", -1, 1, 0, 3, Q("38.83125 mm")),
])
pocket2 = body.newObject("PartDesign::Pocket", "Pocket001")
pocket2.Profile = sketch8
pocket2.Length = 40
pocket2.Reversed = True
doc.recompute()

mirrored2 = body.newObject("PartDesign::Mirrored", "Mirrored001")
mirrored2.Originals = [pad6, pocket2]
mirrored2.MirrorPlane = (doc.getObject("YZ_Plane"), [""])
body.Tip = mirrored2
doc.recompute()

fillet = body.newObject("PartDesign::Fillet", "Fillet")
fillet.Base = (mirrored2, edges_at(mirrored2, [
    (57.15, 0, 45.181),
    (44.45, 0, 32.481),
    (44.45, 0, 45.181),
    (57.15, 0, 32.481),
    (-57.15, 0, 32.481),
    (-44.45, 0, 45.181),
    (-57.15, 0, 45.181),
    (-44.45, 0, 32.481),
]))
fillet.Radius = 2
body2 = doc.addObject("PartDesign::Body", "Body001")

sketch9 = body2.newObject("Sketcher::SketchObject", "Sketch008")
sketch9.AttachmentSupport = (doc.getObject("YZ_Plane001"), [""])
sketch9.MapMode = "FlatFace"
sketch9.AttachmentOffset = App.Placement(Vector(0, 0, 46), App.Rotation())
sketch9.addGeometry([
    Part.Circle(Vector(0, 0, 0), Vector(0, 0, 1), 23),
    Part.Circle(Vector(-18.5125, 0, 0), Vector(0, 0, 1), 3.175),
    Part.Circle(Vector(0, 18.5125, 0), Vector(0, 0, 1), 3.175),
    Part.Circle(Vector(0, 0, 0), Vector(0, 0, 1), 3.175),
    Part.Circle(Vector(0, -18.5125, 0), Vector(0, 0, 1), 3.175),
    Part.Circle(Vector(18.5125, 0, 0), Vector(0, 0, 1), 3.175),
], False)
sketch9.addConstraint([
    Sketcher.Constraint("Coincident", 0, 3, -1, 1),
    Sketcher.Constraint("Coincident", 3, 3, -1, 1),
    Sketcher.Constraint("Equal", 1, 2),
    Sketcher.Constraint("Equal", 2, 3),
    Sketcher.Constraint("Equal", 3, 4),
    Sketcher.Constraint("Equal", 4, 5),
    Sketcher.Constraint("Symmetric", 2, 3, 4, 3, -1, 1),
    Sketcher.Constraint("Symmetric", 1, 3, 5, 3, -1, 1),
    Sketcher.Constraint("PointOnObject", 1, 3, -1),
    Sketcher.Constraint("PointOnObject", 2, 3, -2),
    Sketcher.Constraint("Diameter", 0, Q("46 mm")),
    Sketcher.Constraint("Diameter", 1, Q("6.35 mm")),
    Sketcher.Constraint("DistanceY", 4, 3, 2, 3, Q("37.025 mm")),
    Sketcher.Constraint("DistanceX", 1, 3, 5, 3, Q("37.025 mm")),
])
pad7 = body2.newObject("PartDesign::Pad", "Pad006")
pad7.Profile = sketch9
pad7.Length = 4
body3 = doc.addObject("PartDesign::Body", "Body002")

sketch10 = body3.newObject("Sketcher::SketchObject", "Sketch009")
sketch10.AttachmentSupport = (doc.getObject("YZ_Plane002"), [""])
sketch10.MapMode = "FlatFace"
sketch10.AttachmentOffset = App.Placement(Vector(0, 0, 52), App.Rotation())
sketch10.addGeometry([
    Part.Circle(Vector(0, 0, 0), Vector(0, 0, 1), 20.1),
    Part.Circle(Vector(0, 0, 0), Vector(0, 0, 1), 3.175),
], False)
sketch10.addConstraint([
    Sketcher.Constraint("Coincident", 0, 3, -1, 1),
    Sketcher.Constraint("Coincident", 1, 3, -1, 1),
    Sketcher.Constraint("Diameter", 0, Q("40.2 mm")),
    Sketcher.Constraint("Diameter", 1, Q("6.35 mm")),
])
pad8 = body3.newObject("PartDesign::Pad", "Pad007")
pad8.Profile = sketch10
pad8.Length = 2
body4 = doc.addObject("PartDesign::Body", "Body003")

sketch11 = body4.newObject("Sketcher::SketchObject", "Sketch010")
sketch11.AttachmentSupport = (doc.getObject("YZ_Plane003"), [""])
sketch11.MapMode = "FlatFace"
sketch11.addGeometry(Part.Circle(Vector(0, 0, 0), Vector(0, 0, 1), 3), False)
sketch11.addConstraint([
    Sketcher.Constraint("Coincident", 0, 3, -1, 1),
    Sketcher.Constraint("Diameter", 0, Q("6 mm")),
])
pad9 = body4.newObject("PartDesign::Pad", "Pad008")
pad9.Profile = sketch11
pad9.Length = 127
pad9.Midplane = True
body5 = doc.addObject("PartDesign::Body", "Body004")

sketch12 = body5.newObject("Sketcher::SketchObject", "Sketch011")
sketch12.AttachmentSupport = (doc.getObject("YZ_Plane004"), [""])
sketch12.MapMode = "FlatFace"
sketch12.addGeometry(Part.Circle(Vector(18.5125, 0, 0), Vector(0, 0, 1), 1.5875), False)
sketch12.addConstraint([
    Sketcher.Constraint("PointOnObject", 0, 3, -1),
    Sketcher.Constraint("Diameter", 0, Q("3.175 mm")),
    Sketcher.Constraint("DistanceX", -1, 1, 0, 3, Q("18.5125 mm")),
])
pad10 = body5.newObject("PartDesign::Pad", "Pad009")
pad10.Profile = sketch12
pad10.Length = 101.6
pad10.Midplane = True
body6 = doc.addObject("PartDesign::Body", "Body005")

sketch13 = body6.newObject("Sketcher::SketchObject", "Sketch012")
sketch13.AttachmentSupport = (doc.getObject("YZ_Plane005"), [""])
sketch13.MapMode = "FlatFace"
sketch13.addGeometry(Part.Circle(Vector(0, -18.5125, 0), Vector(0, 0, 1), 1.5875), False)
sketch13.addConstraint([
    Sketcher.Constraint("PointOnObject", 0, 3, -2),
    Sketcher.Constraint("Diameter", 0, Q("3.175 mm")),
    Sketcher.Constraint("DistanceY", 0, 3, -1, 1, Q("18.5125 mm")),
])
pad11 = body6.newObject("PartDesign::Pad", "Pad010")
pad11.Profile = sketch13
pad11.Length = 101.6
pad11.Midplane = True
body7 = doc.addObject("PartDesign::Body", "Body006")

sketch14 = body7.newObject("Sketcher::SketchObject", "Sketch013")
sketch14.AttachmentSupport = (doc.getObject("YZ_Plane006"), [""])
sketch14.MapMode = "FlatFace"
sketch14.addGeometry(Part.Circle(Vector(-18.5125, 0, 0), Vector(0, 0, 1), 1.5875), False)
sketch14.addConstraint([
    Sketcher.Constraint("PointOnObject", 0, 3, -1),
    Sketcher.Constraint("Diameter", 0, Q("3.175 mm")),
    Sketcher.Constraint("DistanceX", 0, 3, -1, 1, Q("18.5125 mm")),
])
pad12 = body7.newObject("PartDesign::Pad", "Pad011")
pad12.Profile = sketch14
pad12.Length = 101.6
pad12.Midplane = True
body8 = doc.addObject("PartDesign::Body", "Body007")

sketch15 = body8.newObject("Sketcher::SketchObject", "Sketch014")
sketch15.AttachmentSupport = (doc.getObject("YZ_Plane007"), [""])
sketch15.MapMode = "FlatFace"
sketch15.addGeometry(Part.Circle(Vector(0, 18.5125, 0), Vector(0, 0, 1), 1.5875), False)
sketch15.addConstraint([
    Sketcher.Constraint("PointOnObject", 0, 3, -2),
    Sketcher.Constraint("Diameter", 0, Q("3.175 mm")),
    Sketcher.Constraint("DistanceY", -1, 1, 0, 3, Q("18.5125 mm")),
])
pad13 = body8.newObject("PartDesign::Pad", "Pad012")
pad13.Profile = sketch15
pad13.Length = 101.6
pad13.Midplane = True

doc.recompute()
